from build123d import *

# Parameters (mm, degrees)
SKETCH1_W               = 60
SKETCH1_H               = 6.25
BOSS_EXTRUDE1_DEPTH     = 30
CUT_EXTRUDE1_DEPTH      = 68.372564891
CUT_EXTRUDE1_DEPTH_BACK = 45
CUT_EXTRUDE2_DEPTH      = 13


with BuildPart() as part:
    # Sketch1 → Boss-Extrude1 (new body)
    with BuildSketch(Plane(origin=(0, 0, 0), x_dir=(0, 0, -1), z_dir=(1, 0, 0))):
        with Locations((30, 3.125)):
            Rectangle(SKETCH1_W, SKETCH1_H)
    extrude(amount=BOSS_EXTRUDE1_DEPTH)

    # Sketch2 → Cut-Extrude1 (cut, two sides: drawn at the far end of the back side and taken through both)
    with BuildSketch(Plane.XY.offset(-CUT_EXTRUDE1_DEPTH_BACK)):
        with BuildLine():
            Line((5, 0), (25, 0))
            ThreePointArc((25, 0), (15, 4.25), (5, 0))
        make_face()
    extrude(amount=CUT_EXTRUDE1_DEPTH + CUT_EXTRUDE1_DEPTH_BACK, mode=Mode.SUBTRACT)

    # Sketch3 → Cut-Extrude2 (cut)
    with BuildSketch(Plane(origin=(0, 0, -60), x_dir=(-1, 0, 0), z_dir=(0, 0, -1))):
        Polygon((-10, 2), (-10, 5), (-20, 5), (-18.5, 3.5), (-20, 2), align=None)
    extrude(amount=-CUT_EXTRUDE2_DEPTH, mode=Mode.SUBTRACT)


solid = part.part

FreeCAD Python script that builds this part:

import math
import FreeCAD as App
import Part
import Sketcher


def add_polygon(sketch, points):
    """Adds a closed chain of lines whose ends are joined by coincident constraints."""
    first, n = sketch.GeometryCount, len(points)
    for a, b in zip(points, points[1:] + points[:1]):
        sketch.addGeometry(Part.LineSegment(App.Vector(*a, 0), App.Vector(*b, 0)), False)
    for i in range(n):
        sketch.addConstraint(Sketcher.Constraint("Coincident", first + i, 2, first + (i + 1) % n, 1))

doc = App.newDocument("Part")
params = doc.addObject("Spreadsheet::Sheet", "Params")
for row, (alias, value) in enumerate([
    ("sketch1_height", "60 mm"),
    ("sketch1_width", "6.25 mm"),
    ("pad1_length", "30 mm"),
    ("sketch2_width", "20 mm"),
    ("pocket1_length", "68.372565 mm"),
    ("pocket1_length2", "45 mm"),
    ("sketch3_width", "10 mm"),
    ("sketch3_height", "3 mm"),
    ("pocket2_length", "13 mm"),
], start=1):
    params.set(f"A{row}", alias)
    params.set(f"B{row}", "=" + value)
    params.setAlias(f"B{row}", alias)

body = doc.addObject("PartDesign::Body", "Body")

# Sketch on YZ plane
sketch1 = doc.addObject("Sketcher::SketchObject", "Sketch")
body.addObject(sketch1)
sketch1.AttachmentSupport = (doc.YZ_Plane, [""])
sketch1.MapMode = "FlatFace"
add_polygon(sketch1, [(6, 0), (0, 0), (0, -60), (6, -60)])  # lines 0-3
sketch1.addConstraint([
    Sketcher.Constraint("Horizontal", 0),
    Sketcher.Constraint("Vertical", 1),
    Sketcher.Constraint("Horizontal", 2),
    Sketcher.Constraint("Vertical", 3),
    Sketcher.Constraint("Coincident", 0, 2, -1, 1),
    Sketcher.Constraint("DistanceY", 1, 2, 1, 1, 60.0),
    Sketcher.Constraint("DistanceX", 0, 2, 0, 1, 6.25),
])
sketch1.setExpression("Constraints[9]", "Params.sketch1_height")
sketch1.setExpression("Constraints[10]", "Params.sketch1_width")
pad1 = doc.addObject("PartDesign::Pad", "Pad")
body.addObject(pad1)
pad1.Profile = sketch1
pad1.setExpression("Length", "Params.pad1_length")

# Sketch on XY plane
sketch2 = doc.addObject("Sketcher::SketchObject", "Sketch001")
body.addObject(sketch2)
sketch2.AttachmentSupport = (doc.XY_Plane, [""])
sketch2.MapMode = "FlatFace"
sketch2.addGeometry([
    Part.LineSegment(App.Vector(5, 0, 0), App.Vector(25, 0, 0)),
    Part.ArcOfCircle(Part.Circle(App.Vector(15, -10, 0), App.Vector(0, 0, 1), 14), math.radians(44), math.radians(136)),
], False)
sketch2.addConstraint([
    Sketcher.Constraint("Coincident", 0, 1, 1, 2),
    Sketcher.Constraint("Coincident", 1, 1, 0, 2),
    Sketcher.Constraint("Horizontal", 0),
    Sketcher.Constraint("PointOnObject", 0, 1, -1),
    Sketcher.Constraint("DistanceX", 0, 1, 0, 2, 20.0),
    Sketcher.Constraint("DistanceX", -1, 1, 1, 3, 15.0),
    Sketcher.Constraint("Radius", 1, 13.889706),
])
sketch2.setExpression("Constraints[4]", "Params.sketch2_width")
pocket1 = doc.addObject("PartDesign::Pocket", "Pocket")
body.addObject(pocket1)
pocket1.Profile = sketch2
pocket1.Type = "TwoLengths"
pocket1.setExpression("Length", "Params.pocket1_length")
pocket1.setExpression("Length2", "Params.pocket1_length2")
pocket1.Reversed = True

# Sketch on XY plane
sketch3 = doc.addObject("Sketcher::SketchObject", "Sketch002")
body.addObject(sketch3)
sketch3.AttachmentSupport = (doc.XY_Plane, [""])
sketch3.MapMode = "FlatFace"
sketch3.AttachmentOffset = App.Placement(App.Vector(0, 0, -60), App.Rotation())
add_polygon(sketch3, [(10, 2), (10, 5), (20, 5), (18.5, 3.5), (20, 2)])  # lines 0-4
sketch3.addConstraint([
    Sketcher.Constraint("Vertical", 0),
    Sketcher.Constraint("Horizontal", 1),
    Sketcher.Constraint("Horizontal", 4),
    Sketcher.Constraint("Perpendicular", 2, 3),
    Sketcher.Constraint("Vertical", 1, 2, 3, 2),
    Sketcher.Constraint("Equal", 2, 3),
    Sketcher.Constraint("DistanceX", 1, 1, 1, 2, 10.0),
    Sketcher.Constraint("DistanceY", 0, 1, 0, 2, 3.0),
    Sketcher.Constraint("DistanceX", -1, 1, 0, 2, 10.0),
    Sketcher.Constraint("DistanceY", -1, 1, 0, 2, 5.0),
])
sketch3.setExpression("Constraints[11]", "Params.sketch3_width")
sketch3.setExpression("Constraints[12]", "Params.sketch3_height")
pocket2 = doc.addObject("PartDesign::Pocket", "Pocket001")
body.addObject(pocket2)
pocket2.Profile = sketch3
pocket2.setExpression("Length", "Params.pocket2_length")
pocket2.Reversed = True

doc.recompute()
